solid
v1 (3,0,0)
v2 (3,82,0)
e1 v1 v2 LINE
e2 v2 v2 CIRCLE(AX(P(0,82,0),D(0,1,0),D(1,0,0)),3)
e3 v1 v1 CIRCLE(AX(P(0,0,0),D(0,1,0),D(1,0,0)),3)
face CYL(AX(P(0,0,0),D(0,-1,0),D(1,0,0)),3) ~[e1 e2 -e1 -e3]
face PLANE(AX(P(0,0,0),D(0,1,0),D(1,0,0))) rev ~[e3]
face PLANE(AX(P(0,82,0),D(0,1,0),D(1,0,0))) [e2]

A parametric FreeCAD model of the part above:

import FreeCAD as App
import Part
import Sketcher
from FreeCAD import Vector

doc = App.newDocument("Part")
body = doc.addObject("PartDesign::Body", "Body")

# Sketch on XZ plane
sketch1 = body.newObject("Sketcher::SketchObject", "Sketch")
sketch1.AttachmentSupport = (doc.getObject("XZ_Plane"), [""])
sketch1.MapMode = "FlatFace"
sketch1.addGeometry(Part.Circle(Vector(0, 0, 0), Vector(0, 0, 1), 3), False)
sketch1.addConstraint(Sketcher.Constraint("Coincident", 0, 3, -1, 1))
sketch1.addConstraint(Sketcher.Constraint("Diameter", 0, 6.0))
pad1 = body.newObject("PartDesign::Pad", "Pad")
pad1.Profile = sketch1
pad1.Length = 82
pad1.Reversed = True

doc.recompute()
